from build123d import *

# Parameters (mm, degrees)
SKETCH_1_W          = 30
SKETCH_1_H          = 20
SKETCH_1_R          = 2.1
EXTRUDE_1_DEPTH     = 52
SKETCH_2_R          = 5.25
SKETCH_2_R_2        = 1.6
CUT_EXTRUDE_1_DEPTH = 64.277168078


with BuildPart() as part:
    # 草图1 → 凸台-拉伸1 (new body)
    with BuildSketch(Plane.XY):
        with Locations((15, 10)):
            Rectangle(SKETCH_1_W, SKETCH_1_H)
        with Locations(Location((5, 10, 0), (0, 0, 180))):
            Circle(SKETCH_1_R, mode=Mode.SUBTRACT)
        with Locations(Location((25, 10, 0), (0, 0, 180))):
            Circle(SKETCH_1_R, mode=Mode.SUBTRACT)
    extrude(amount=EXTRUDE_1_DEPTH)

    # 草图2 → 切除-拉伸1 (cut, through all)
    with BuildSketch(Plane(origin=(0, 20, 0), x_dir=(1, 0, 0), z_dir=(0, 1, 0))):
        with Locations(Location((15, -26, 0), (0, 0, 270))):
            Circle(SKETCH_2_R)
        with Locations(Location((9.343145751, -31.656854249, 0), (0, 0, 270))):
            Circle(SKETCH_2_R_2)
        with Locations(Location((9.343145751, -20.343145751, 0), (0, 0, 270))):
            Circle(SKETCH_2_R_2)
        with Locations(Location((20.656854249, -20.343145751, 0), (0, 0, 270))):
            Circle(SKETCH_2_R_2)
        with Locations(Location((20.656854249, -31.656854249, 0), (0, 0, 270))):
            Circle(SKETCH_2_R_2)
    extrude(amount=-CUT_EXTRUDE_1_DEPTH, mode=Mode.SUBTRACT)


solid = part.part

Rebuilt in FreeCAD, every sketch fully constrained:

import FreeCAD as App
import Part
import Sketcher

doc = App.newDocument("Part")
body = doc.addObject("PartDesign::Body", "Body")

sketch1 = body.newObject("Sketcher::SketchObject", "Sketch")
sketch1.AttachmentSupport = (doc.getObject("XY_Plane"), [""])
sketch1.MapMode = "FlatFace"
sketch1.addGeometry(Part.LineSegment(App.Vector(0, 20, 0), App.Vector(0, 0, 0)), False)
sketch1.addGeometry(Part.LineSegment(App.Vector(0, 0, 0), App.Vector(30, 0, 0)), False)
sketch1.addGeometry(Part.LineSegment(App.Vector(30, 0, 0), App.Vector(30, 20, 0)), False)
sketch1.addGeometry(Part.LineSegment(App.Vector(30, 20, 0), App.Vector(0, 20, 0)), False)
sketch1.addGeometry(Part.Circle(App.Vector(5, 10, 0), App.Vector(0, 0, 1), 2.1), False)
sketch1.addGeometry(Part.Circle(App.Vector(25, 10, 0), App.Vector(0, 0, 1), 2.1), False)
sketch1.addConstraint(Sketcher.Constraint("Coincident", 0, 2, 1, 1))
sketch1.addConstraint(Sketcher.Constraint("Coincident", 1, 2, 2, 1))
sketch1.addConstraint(Sketcher.Constraint("Coincident", 2, 2, 3, 1))
sketch1.addConstraint(Sketcher.Constraint("Coincident", 3, 2, 0, 1))
sketch1.addConstraint(Sketcher.Constraint("Vertical", 0))
sketch1.addConstraint(Sketcher.Constraint("Horizontal", 1))
sketch1.addConstraint(Sketcher.Constraint("Vertical", 2))
sketch1.addConstraint(Sketcher.Constraint("Horizontal", 3))
sketch1.addConstraint(Sketcher.Constraint("Coincident", 0, 2, -1, 1))
sketch1.addConstraint(Sketcher.Constraint("Equal", 4, 5))
sketch1.addConstraint(Sketcher.Constraint("Horizontal", 4, 3, 5, 3))
sketch1.addConstraint(Sketcher.Constraint("Diameter", 4, 4.2))
sketch1.addConstraint(Sketcher.Constraint("DistanceX", 1, 1, 1, 2, 30.0))
sketch1.addConstraint(Sketcher.Constraint("DistanceY", 0, 2, 0, 1, 20.0))
sketch1.addConstraint(Sketcher.Constraint("DistanceX", -1, 1, 4, 3, 5.0))
sketch1.addConstraint(Sketcher.Constraint("DistanceY", -1, 1, 4, 3, 10.0))
sketch1.addConstraint(Sketcher.Constraint("DistanceX", -1, 1, 5, 3, 25.0))
pad1 = body.newObject("PartDesign::Pad", "Pad")
pad1.Profile = sketch1
pad1.Length = 52

sketch2 = body.newObject("Sketcher::SketchObject", "Sketch001")
sketch2.AttachmentSupport = (doc.getObject("XZ_Plane"), [""])
sketch2.MapMode = "FlatFace"
sketch2.AttachmentOffset = App.Placement(App.Vector(0, 0, -20), App.Rotation())
sketch2.addGeometry(Part.Circle(App.Vector(15, 26, 0), App.Vector(0, 0, 1), 5.2), False)
sketch2.addGeometry(Part.Circle(App.Vector(9.3, 31.7, 0), App.Vector(0, 0, 1), 1.6), False)
sketch2.addGeometry(Part.Circle(App.Vector(9.3, 20.3, 0), App.Vector(0, 0, 1), 1.6), False)
sketch2.addGeometry(Part.Circle(App.Vector(20.7, 20.3, 0), App.Vector(0, 0, 1), 1.6), False)
sketch2.addGeometry(Part.Circle(App.Vector(20.7, 31.7, 0), App.Vector(0, 0, 1), 1.6), False)
sketch2.addConstraint(Sketcher.Constraint("Equal", 1, 2))
sketch2.addConstraint(Sketcher.Constraint("Equal", 2, 3))
sketch2.addConstraint(Sketcher.Constraint("Equal", 3, 4))
sketch2.addConstraint(Sketcher.Constraint("Horizontal", 2, 3, 3, 3))
sketch2.addConstraint(Sketcher.Constraint("Horizontal", 1, 3, 4, 3))
sketch2.addConstraint(Sketcher.Constraint("Vertical", 1, 3, 2, 3))
sketch2.addConstraint(Sketcher.Constraint("Vertical", 3, 3, 4, 3))
sketch2.addConstraint(Sketcher.Constraint("Diameter", 0, 10.5))
sketch2.addConstraint(Sketcher.Constraint("Diameter", 1, 3.2))
sketch2.addConstraint(Sketcher.Constraint("DistanceX", -1, 1, 0, 3, 15.0))
sketch2.addConstraint(Sketcher.Constraint("DistanceY", -1, 1, 0, 3, 26.0))
sketch2.addConstraint(Sketcher.Constraint("DistanceY", 2, 3, 1, 3, 11.313708))
sketch2.addConstraint(Sketcher.Constraint("DistanceX", 2, 3, 3, 3, 11.313708))
sketch2.addConstraint(Sketcher.Constraint("DistanceX", -1, 1, 1, 3, 9.343146))
sketch2.addConstraint(Sketcher.Constraint("DistanceY", -1, 1, 1, 3, 31.656854))
pocket1 = body.newObject("PartDesign::Pocket", "Pocket")
pocket1.Profile = sketch2
pocket1.Type = "ThroughAll"
pocket1.Reversed = True

doc.recompute()
